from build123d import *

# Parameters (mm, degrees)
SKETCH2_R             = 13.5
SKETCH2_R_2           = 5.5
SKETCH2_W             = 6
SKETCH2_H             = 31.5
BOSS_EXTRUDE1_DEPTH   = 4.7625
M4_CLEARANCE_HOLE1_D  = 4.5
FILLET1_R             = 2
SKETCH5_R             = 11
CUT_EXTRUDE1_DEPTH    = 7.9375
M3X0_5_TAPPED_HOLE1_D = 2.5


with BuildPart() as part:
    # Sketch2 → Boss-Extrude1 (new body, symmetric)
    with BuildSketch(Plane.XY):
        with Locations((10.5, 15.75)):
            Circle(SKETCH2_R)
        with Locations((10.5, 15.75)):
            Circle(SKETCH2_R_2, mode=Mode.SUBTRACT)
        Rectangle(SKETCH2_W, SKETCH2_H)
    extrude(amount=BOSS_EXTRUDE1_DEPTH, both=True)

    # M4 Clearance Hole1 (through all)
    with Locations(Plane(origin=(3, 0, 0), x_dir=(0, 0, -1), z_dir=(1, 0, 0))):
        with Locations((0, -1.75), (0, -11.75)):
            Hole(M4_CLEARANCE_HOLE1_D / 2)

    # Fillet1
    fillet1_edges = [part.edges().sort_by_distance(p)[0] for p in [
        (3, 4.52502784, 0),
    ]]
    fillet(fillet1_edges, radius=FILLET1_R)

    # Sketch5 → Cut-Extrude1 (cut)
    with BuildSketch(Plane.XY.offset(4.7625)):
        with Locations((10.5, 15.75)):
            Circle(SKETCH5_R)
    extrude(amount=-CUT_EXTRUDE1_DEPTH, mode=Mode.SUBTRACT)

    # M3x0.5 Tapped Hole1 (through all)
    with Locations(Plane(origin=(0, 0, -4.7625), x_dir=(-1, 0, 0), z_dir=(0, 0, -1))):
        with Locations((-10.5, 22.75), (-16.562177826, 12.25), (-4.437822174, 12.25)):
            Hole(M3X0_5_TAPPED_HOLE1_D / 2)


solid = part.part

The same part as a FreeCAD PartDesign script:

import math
import FreeCAD as App
import Part
import Sketcher


def edges_at(feature, points):
    """Names of the edges that pass closest to the given points."""
    edges = feature.Shape.Edges
    near = lambda p: min(range(len(edges)), key=lambda i: edges[i].distToShape(Part.Vertex(*p))[0])
    return sorted({f"Edge{near(p) + 1}" for p in points})

doc = App.newDocument("Part")
body = doc.addObject("PartDesign::Body", "Body")

# Sketch on XY plane
sketch1 = body.newObject("Sketcher::SketchObject", "Sketch")
sketch1.AttachmentSupport = (doc.getObject("XY_Plane"), [""])
sketch1.MapMode = "FlatFace"
sketch1.addGeometry(Part.ArcOfCircle(Part.Circle(App.Vector(10, 16, 0), App.Vector(0, 0, 1), 14), math.radians(-124), math.radians(180)), False)
sketch1.addGeometry(Part.LineSegment(App.Vector(-3, 16, 0), App.Vector(-3, -16, 0)), False)
sketch1.addGeometry(Part.LineSegment(App.Vector(-3, -16, 0), App.Vector(3, -16, 0)), False)
sketch1.addGeometry(Part.LineSegment(App.Vector(3, -16, 0), App.Vector(3, 5, 0)), False)
sketch1.addGeometry(Part.Circle(App.Vector(10, 16, 0), App.Vector(0, 0, 1), 6), False)
sketch1.addConstraint(Sketcher.Constraint("Tangent", 0, 2, 1, 1))
sketch1.addConstraint(Sketcher.Constraint("Coincident", 1, 2, 2, 1))
sketch1.addConstraint(Sketcher.Constraint("Coincident", 2, 2, 3, 1))
sketch1.addConstraint(Sketcher.Constraint("Coincident", 3, 2, 0, 1))
sketch1.addConstraint(Sketcher.Constraint("Vertical", 1))
sketch1.addConstraint(Sketcher.Constraint("Horizontal", 2))
sketch1.addConstraint(Sketcher.Constraint("Vertical", 3))
sketch1.addConstraint(Sketcher.Constraint("Coincident", 4, 3, 0, 3))
sketch1.addConstraint(Sketcher.Constraint("Symmetric", 0, 2, 2, 2, -1, 1))
sketch1.addConstraint(Sketcher.Constraint("Diameter", 4, 11.0))
sketch1.addConstraint(Sketcher.Constraint("Radius", 0, 13.5))
sketch1.addConstraint(Sketcher.Constraint("DistanceX", 2, 1, 2, 2, 6.0))
sketch1.addConstraint(Sketcher.Constraint("DistanceY", 1, 2, 1, 1, 31.5))
pad1 = body.newObject("PartDesign::Pad", "Pad")
pad1.Profile = sketch1
pad1.Length = 9.525
pad1.Midplane = True

# Sketch on YZ plane
sketch2 = body.newObject("Sketcher::SketchObject", "Sketch001")
sketch2.AttachmentSupport = (doc.getObject("YZ_Plane"), [""])
sketch2.MapMode = "FlatFace"
sketch2.AttachmentOffset = App.Placement(App.Vector(0, 0, 3), App.Rotation())
sketch2.addGeometry(Part.Circle(App.Vector(-1.8, 0, 0), App.Vector(0, 0, 1), 2.2), False)
sketch2.addGeometry(Part.Circle(App.Vector(-11.8, 0, 0), App.Vector(0, 0, 1), 2.2), False)
sketch2.addConstraint(Sketcher.Constraint("Equal", 0, 1))
sketch2.addConstraint(Sketcher.Constraint("PointOnObject", 0, 3, -1))
sketch2.addConstraint(Sketcher.Constraint("PointOnObject", 1, 3, -1))
sketch2.addConstraint(Sketcher.Constraint("Diameter", 0, 4.5))
sketch2.addConstraint(Sketcher.Constraint("DistanceX", 1, 3, 0, 3, 10.0))
sketch2.addConstraint(Sketcher.Constraint("DistanceX", 0, 3, -1, 1, 1.75))
doc.recompute()
hole = body.newObject("PartDesign::Hole", "Hole")
hole.Profile = sketch2
hole.ThreadType = "None"
hole.Diameter = 4.5
hole.DepthType = "ThroughAll"
doc.recompute()

fillet = body.newObject("PartDesign::Fillet", "Fillet")
fillet.Base = (hole, edges_at(hole, [(3, 4.525, 0)]))
fillet.Radius = 2

# Sketch on XY plane
sketch3 = body.newObject("Sketcher::SketchObject", "Sketch002")
sketch3.AttachmentSupport = (doc.getObject("XY_Plane"), [""])
sketch3.MapMode = "FlatFace"
sketch3.AttachmentOffset = App.Placement(App.Vector(0, 0, 4.7625), App.Rotation())
sketch3.addGeometry(Part.Circle(App.Vector(10, 16, 0), App.Vector(0, 0, 1), 11), False)
sketch3.addConstraint(Sketcher.Constraint("Diameter", 0, 22.0))
sketch3.addConstraint(Sketcher.Constraint("DistanceX", -1, 1, 0, 3, 10.5))
sketch3.addConstraint(Sketcher.Constraint("DistanceY", -1, 1, 0, 3, 15.75))
pocket1 = body.newObject("PartDesign::Pocket", "Pocket")
pocket1.Profile = sketch3
pocket1.Length = 7.9375

# Sketch on XY plane
sketch4 = body.newObject("Sketcher::SketchObject", "Sketch003")
sketch4.AttachmentSupport = (doc.getObject("XY_Plane"), [""])
sketch4.MapMode = "FlatFace"
sketch4.AttachmentOffset = App.Placement(App.Vector(0, 0, -4.7625), App.Rotation())
sketch4.addGeometry(Part.Circle(App.Vector(10.5, 22.8, 0), App.Vector(0, 0, 1), 1.2), False)
sketch4.addGeometry(Part.Circle(App.Vector(16.6, 12.2, 0), App.Vector(0, 0, 1), 1.2), False)
sketch4.addGeometry(Part.Circle(App.Vector(4.4, 12.2, 0), App.Vector(0, 0, 1), 1.2), False)
sketch4.addConstraint(Sketcher.Constraint("Equal", 0, 1))
sketch4.addConstraint(Sketcher.Constraint("Equal", 1, 2))
sketch4.addConstraint(Sketcher.Constraint("Horizontal", 1, 3, 2, 3))
sketch4.addConstraint(Sketcher.Constraint("Diameter", 0, 2.5))
sketch4.addConstraint(Sketcher.Constraint("DistanceX", -1, 1, 0, 3, 10.5))
sketch4.addConstraint(Sketcher.Constraint("DistanceY", 1, 3, 0, 3, 10.5))
sketch4.addConstraint(Sketcher.Constraint("DistanceY", -1, 1, 0, 3, 22.75))
sketch4.addConstraint(Sketcher.Constraint("DistanceX", -1, 1, 1, 3, 16.562178))
sketch4.addConstraint(Sketcher.Constraint("DistanceX", -1, 1, 2, 3, 4.437822))
doc.recompute()
hole2 = body.newObject("PartDesign::Hole", "Hole001")
hole2.Profile = sketch4
hole2.ThreadType = "None"
hole2.Diameter = 2.5
hole2.DepthType = "ThroughAll"
hole2.Reversed = True

doc.recompute()
